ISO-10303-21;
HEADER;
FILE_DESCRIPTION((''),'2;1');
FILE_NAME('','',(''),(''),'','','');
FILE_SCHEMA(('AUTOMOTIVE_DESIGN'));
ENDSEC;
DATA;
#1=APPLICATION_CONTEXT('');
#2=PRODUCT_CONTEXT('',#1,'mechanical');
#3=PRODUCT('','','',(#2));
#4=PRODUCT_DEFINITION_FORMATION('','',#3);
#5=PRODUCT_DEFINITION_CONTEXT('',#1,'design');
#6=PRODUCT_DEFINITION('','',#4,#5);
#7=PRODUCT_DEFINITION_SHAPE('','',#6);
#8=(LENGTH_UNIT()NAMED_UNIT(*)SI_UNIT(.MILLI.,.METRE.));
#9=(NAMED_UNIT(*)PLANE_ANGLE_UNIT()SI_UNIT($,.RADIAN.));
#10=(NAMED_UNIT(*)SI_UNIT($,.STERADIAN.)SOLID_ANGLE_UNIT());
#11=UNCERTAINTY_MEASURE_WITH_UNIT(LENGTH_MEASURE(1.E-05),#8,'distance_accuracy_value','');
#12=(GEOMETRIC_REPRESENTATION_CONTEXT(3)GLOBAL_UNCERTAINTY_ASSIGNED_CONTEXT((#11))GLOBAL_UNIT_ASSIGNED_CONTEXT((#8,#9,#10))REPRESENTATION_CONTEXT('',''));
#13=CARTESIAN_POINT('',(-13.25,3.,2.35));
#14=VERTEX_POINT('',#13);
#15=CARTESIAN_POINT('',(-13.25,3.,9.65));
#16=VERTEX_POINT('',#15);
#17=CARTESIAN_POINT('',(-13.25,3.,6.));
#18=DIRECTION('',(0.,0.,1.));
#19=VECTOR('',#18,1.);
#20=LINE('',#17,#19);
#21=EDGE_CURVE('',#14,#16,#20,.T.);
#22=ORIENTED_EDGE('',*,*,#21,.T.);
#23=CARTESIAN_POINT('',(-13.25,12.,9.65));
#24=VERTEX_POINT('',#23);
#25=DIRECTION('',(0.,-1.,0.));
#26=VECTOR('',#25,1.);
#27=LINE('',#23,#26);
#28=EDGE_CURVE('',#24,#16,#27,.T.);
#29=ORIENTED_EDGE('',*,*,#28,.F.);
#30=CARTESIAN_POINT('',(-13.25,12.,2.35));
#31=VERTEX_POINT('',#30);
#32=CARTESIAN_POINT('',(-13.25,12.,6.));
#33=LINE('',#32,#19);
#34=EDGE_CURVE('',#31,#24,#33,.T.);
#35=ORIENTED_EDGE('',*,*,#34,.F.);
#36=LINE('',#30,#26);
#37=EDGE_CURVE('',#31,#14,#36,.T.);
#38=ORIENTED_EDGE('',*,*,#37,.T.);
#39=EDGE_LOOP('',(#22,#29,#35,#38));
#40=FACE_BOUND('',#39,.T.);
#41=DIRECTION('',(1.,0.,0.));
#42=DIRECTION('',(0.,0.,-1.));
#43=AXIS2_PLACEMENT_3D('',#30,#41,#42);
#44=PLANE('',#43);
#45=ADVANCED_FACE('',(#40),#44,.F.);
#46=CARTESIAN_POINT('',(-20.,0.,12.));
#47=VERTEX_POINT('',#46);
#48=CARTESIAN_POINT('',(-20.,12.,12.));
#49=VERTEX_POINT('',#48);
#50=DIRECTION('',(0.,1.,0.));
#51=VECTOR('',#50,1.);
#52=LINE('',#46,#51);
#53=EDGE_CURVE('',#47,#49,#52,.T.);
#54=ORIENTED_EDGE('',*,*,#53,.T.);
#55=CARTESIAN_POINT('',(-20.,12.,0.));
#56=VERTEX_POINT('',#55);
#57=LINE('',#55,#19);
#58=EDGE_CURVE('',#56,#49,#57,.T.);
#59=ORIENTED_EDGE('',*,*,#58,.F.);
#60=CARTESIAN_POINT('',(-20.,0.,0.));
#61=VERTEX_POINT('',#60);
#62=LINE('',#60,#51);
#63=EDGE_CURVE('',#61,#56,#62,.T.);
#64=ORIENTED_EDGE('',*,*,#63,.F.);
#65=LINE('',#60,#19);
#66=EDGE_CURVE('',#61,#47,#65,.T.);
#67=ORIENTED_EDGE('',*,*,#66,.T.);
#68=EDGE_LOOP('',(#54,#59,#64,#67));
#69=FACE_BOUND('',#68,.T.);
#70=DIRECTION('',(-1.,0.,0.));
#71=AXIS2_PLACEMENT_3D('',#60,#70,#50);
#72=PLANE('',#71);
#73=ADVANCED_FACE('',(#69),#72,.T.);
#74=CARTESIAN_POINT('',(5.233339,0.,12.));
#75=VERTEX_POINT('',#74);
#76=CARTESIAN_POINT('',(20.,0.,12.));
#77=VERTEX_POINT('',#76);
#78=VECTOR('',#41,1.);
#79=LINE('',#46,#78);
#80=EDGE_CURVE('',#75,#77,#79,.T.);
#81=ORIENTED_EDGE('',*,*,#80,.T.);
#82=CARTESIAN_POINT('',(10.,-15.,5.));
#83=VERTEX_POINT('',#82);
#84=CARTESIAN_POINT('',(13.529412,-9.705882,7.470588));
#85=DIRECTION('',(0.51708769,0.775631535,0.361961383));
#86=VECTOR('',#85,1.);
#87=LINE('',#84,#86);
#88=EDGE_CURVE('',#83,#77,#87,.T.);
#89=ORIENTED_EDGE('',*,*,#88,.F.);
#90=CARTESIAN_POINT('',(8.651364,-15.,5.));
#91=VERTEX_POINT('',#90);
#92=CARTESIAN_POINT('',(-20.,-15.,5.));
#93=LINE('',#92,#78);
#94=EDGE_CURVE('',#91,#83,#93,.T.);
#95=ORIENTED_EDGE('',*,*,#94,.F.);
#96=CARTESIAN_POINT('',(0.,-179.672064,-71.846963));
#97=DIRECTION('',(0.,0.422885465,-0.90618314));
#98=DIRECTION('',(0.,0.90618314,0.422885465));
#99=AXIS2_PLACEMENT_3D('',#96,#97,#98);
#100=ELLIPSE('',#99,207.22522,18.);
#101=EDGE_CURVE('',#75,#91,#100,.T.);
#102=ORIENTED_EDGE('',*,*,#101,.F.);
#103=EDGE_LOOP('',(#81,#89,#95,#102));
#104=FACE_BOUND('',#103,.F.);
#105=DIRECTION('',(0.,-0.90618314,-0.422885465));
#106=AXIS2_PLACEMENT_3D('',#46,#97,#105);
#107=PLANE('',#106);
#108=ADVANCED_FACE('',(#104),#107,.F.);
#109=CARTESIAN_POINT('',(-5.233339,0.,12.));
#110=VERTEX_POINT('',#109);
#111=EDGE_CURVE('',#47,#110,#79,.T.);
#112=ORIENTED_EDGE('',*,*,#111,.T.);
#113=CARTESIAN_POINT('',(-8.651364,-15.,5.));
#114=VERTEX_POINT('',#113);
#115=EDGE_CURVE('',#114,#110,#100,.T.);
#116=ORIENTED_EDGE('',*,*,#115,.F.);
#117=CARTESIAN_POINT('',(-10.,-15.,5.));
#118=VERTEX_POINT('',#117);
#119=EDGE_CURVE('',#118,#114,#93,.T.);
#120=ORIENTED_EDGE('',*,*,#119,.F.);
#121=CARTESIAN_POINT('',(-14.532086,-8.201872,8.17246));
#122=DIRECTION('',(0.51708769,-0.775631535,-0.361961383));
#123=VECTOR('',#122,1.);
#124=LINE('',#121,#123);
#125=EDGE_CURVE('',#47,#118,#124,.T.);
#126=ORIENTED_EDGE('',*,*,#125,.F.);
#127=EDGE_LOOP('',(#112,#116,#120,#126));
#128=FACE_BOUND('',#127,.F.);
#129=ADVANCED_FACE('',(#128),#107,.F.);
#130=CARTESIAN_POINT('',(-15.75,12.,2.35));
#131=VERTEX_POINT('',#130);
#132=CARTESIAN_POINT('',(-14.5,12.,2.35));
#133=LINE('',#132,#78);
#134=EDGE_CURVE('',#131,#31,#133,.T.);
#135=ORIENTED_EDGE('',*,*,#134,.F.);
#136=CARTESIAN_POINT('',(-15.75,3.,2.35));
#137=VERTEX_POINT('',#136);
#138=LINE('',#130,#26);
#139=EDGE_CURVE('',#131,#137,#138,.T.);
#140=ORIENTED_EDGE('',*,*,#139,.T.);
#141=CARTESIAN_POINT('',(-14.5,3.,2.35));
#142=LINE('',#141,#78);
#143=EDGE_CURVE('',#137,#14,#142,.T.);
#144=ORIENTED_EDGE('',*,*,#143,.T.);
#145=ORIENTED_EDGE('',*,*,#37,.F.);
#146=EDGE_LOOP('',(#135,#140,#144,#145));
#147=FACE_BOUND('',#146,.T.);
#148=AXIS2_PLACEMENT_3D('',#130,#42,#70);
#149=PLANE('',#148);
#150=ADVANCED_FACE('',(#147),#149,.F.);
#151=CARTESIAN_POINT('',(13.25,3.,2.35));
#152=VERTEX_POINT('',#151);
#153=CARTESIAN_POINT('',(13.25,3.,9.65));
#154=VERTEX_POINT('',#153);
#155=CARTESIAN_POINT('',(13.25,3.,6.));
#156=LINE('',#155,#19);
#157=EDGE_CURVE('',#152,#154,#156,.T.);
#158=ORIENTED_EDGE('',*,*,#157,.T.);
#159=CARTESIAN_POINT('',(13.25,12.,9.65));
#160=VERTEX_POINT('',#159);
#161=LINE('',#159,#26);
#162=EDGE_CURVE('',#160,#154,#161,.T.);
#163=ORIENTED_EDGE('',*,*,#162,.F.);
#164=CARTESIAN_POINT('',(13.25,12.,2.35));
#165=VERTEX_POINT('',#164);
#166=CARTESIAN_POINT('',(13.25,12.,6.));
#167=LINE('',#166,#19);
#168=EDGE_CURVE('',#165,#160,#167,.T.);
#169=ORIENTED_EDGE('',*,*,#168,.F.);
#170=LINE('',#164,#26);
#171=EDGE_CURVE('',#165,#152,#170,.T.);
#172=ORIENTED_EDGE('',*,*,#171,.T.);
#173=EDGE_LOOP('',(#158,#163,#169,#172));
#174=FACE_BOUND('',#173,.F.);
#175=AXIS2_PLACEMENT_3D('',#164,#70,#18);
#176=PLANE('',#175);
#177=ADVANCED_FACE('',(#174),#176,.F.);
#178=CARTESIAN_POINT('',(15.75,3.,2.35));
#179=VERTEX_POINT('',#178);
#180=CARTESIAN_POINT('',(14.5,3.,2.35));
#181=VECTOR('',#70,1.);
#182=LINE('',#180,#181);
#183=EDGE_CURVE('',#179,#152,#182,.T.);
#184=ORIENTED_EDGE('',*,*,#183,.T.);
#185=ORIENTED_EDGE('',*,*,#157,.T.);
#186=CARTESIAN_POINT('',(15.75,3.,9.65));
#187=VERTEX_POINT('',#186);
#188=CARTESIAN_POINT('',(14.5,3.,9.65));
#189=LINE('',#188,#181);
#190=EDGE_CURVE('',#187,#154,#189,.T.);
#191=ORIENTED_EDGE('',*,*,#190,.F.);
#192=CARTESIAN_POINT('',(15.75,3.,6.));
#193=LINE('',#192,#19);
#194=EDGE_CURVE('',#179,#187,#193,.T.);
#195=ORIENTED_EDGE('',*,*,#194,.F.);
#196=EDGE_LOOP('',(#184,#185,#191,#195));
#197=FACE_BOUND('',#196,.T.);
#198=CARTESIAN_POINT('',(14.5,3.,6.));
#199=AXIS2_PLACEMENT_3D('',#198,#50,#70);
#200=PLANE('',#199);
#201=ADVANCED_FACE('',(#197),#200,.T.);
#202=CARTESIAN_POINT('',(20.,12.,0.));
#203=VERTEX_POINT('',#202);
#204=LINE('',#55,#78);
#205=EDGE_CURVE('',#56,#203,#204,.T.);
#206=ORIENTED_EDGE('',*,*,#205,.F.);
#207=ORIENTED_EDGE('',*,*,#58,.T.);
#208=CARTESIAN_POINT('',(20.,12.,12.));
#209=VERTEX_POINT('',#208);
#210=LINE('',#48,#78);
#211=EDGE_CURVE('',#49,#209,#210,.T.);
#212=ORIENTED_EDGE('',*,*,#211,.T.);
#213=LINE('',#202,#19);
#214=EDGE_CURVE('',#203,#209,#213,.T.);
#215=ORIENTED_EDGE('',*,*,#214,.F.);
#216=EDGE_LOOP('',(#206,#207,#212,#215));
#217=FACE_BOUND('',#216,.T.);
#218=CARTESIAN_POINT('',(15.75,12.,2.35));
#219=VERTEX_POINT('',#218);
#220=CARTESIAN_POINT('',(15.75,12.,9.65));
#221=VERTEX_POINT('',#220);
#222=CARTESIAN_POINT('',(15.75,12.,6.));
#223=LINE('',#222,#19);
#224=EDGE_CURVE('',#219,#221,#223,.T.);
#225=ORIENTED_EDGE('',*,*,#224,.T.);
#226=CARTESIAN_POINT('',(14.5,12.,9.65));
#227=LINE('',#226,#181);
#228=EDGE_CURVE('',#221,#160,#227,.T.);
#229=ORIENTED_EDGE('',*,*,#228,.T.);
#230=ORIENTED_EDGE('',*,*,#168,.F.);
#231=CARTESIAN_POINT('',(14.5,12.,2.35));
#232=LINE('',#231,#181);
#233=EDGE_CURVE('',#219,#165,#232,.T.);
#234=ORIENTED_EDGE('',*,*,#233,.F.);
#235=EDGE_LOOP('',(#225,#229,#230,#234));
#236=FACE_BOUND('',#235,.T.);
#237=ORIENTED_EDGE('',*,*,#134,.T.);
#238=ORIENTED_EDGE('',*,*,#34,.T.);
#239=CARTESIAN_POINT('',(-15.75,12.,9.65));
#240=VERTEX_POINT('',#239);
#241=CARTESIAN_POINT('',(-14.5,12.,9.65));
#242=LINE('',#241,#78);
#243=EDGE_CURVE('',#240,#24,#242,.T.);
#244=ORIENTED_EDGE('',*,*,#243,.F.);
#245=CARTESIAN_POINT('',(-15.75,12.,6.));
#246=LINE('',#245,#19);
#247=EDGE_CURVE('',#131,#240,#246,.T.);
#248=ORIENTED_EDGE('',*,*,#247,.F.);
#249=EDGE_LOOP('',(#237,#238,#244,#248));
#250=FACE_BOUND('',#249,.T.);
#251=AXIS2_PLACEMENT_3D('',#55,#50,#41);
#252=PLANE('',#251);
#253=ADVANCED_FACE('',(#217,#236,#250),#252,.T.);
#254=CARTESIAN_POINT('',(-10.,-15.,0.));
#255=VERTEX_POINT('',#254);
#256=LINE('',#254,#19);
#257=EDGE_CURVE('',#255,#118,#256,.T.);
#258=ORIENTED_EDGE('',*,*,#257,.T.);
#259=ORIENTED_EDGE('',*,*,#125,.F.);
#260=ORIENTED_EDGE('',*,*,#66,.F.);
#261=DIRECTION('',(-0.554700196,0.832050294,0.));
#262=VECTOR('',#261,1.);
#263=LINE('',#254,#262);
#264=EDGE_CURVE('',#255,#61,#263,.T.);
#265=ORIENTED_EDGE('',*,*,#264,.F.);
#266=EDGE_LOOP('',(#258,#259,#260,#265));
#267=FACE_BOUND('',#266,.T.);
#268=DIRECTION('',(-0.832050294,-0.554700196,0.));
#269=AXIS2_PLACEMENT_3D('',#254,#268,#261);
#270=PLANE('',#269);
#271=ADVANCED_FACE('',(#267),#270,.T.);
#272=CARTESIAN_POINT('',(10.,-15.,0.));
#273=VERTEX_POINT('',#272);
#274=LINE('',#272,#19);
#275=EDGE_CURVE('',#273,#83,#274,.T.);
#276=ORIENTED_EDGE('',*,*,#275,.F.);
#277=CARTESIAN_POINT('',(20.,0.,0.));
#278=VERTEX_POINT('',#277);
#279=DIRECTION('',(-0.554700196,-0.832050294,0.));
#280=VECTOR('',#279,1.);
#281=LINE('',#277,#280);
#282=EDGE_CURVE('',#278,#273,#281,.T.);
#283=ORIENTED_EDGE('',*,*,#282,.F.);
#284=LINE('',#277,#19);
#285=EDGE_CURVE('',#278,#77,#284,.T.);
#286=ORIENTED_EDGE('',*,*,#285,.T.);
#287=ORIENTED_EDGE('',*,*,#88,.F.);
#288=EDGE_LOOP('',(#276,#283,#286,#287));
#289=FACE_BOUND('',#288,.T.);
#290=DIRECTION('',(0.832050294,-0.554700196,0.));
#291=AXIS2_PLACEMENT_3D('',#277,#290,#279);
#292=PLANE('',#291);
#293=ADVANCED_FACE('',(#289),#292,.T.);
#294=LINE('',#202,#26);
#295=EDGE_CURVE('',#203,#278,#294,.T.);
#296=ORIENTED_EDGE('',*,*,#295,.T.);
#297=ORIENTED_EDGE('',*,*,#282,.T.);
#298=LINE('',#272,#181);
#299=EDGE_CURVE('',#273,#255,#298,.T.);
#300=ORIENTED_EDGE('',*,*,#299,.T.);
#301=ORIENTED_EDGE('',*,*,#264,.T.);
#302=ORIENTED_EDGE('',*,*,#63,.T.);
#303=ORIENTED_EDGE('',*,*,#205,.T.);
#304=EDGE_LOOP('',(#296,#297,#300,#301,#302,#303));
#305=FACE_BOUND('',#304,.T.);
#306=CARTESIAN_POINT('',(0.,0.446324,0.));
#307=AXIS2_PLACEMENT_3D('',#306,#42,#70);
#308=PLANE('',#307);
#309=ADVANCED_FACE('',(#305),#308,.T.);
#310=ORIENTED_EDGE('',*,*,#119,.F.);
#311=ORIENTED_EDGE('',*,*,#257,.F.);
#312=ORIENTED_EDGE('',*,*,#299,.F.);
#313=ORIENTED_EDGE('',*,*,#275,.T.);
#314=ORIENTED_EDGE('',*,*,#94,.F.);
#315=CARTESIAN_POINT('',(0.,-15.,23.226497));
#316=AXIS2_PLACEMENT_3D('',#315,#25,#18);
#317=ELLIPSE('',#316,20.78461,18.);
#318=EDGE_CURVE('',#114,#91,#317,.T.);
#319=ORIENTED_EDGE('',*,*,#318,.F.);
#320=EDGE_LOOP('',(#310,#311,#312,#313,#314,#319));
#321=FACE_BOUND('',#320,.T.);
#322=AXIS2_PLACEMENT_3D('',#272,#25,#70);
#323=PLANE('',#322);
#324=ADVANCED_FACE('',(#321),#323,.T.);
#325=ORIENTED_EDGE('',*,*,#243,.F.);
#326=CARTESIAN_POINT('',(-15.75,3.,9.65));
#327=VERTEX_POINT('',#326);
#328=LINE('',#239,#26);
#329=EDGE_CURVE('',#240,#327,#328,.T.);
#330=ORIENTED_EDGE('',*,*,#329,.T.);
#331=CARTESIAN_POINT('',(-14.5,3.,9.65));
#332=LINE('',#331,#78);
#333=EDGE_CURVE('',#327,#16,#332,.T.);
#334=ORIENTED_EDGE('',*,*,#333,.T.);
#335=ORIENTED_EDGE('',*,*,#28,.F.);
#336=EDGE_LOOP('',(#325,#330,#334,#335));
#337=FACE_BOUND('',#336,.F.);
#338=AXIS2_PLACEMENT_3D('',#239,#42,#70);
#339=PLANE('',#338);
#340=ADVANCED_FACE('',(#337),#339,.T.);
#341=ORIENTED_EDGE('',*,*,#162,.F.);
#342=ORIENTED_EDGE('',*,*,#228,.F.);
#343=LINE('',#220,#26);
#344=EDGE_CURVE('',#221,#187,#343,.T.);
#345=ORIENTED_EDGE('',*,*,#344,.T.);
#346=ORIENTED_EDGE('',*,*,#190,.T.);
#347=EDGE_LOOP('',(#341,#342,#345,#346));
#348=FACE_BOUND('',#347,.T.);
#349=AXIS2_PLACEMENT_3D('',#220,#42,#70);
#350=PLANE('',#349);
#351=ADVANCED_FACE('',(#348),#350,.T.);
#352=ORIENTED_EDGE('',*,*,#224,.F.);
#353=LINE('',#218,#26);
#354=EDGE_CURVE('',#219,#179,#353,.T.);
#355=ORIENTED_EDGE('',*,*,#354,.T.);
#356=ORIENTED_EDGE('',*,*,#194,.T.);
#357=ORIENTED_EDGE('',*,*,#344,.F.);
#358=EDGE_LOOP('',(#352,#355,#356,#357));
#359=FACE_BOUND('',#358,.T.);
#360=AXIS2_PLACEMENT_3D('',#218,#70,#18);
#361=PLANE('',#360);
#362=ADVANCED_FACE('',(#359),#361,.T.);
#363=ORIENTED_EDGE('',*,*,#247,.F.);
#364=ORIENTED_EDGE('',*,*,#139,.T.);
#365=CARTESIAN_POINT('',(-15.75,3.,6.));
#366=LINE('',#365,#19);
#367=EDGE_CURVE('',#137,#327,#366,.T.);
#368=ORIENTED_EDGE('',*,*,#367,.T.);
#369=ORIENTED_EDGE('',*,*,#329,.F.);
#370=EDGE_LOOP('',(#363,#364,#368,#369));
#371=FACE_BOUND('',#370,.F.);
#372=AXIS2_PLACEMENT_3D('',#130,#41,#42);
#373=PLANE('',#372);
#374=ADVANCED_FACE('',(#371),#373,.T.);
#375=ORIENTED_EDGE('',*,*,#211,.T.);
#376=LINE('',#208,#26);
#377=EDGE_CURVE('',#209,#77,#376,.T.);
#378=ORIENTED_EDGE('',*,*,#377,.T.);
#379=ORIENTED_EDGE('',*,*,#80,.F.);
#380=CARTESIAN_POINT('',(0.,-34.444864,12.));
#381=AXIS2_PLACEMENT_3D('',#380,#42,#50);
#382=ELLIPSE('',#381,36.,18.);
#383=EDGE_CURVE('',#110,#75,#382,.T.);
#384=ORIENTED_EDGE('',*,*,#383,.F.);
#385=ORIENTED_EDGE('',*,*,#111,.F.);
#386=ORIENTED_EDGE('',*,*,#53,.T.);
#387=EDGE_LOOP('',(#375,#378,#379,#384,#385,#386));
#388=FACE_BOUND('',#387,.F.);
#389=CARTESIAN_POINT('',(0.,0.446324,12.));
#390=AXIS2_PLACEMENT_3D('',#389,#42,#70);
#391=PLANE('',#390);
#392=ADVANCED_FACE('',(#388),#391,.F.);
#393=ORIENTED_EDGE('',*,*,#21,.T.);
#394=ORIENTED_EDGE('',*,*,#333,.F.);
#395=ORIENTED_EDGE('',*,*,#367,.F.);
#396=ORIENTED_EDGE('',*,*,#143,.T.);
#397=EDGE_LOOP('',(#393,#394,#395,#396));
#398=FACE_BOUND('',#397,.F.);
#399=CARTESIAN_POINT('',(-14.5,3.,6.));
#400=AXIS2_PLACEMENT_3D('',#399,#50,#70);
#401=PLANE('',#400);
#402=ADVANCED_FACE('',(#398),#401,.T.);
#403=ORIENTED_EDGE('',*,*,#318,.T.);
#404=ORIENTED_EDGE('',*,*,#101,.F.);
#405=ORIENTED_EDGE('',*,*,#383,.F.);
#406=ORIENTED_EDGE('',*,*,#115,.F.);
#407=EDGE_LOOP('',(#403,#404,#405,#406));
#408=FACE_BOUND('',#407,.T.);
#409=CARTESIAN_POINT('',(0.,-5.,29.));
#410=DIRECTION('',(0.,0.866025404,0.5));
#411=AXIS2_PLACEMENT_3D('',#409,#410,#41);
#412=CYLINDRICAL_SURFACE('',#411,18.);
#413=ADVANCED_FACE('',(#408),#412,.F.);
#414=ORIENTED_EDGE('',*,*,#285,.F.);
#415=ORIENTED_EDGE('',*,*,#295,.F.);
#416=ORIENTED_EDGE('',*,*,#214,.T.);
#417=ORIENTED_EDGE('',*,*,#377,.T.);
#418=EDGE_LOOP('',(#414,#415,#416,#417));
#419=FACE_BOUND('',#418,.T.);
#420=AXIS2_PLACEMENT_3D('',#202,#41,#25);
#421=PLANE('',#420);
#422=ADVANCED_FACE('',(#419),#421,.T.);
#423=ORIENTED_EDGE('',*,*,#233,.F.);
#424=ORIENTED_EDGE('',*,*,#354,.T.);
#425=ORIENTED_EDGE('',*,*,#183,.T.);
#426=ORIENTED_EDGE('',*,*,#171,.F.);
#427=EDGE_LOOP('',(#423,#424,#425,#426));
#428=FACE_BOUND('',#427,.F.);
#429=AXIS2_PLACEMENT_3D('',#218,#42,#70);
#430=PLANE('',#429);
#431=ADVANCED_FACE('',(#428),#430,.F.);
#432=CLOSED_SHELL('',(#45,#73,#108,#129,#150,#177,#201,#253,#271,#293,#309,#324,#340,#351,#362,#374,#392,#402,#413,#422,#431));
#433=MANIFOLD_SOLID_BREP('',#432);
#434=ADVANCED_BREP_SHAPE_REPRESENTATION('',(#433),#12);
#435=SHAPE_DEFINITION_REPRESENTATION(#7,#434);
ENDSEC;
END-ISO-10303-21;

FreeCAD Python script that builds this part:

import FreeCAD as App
import Part
import Sketcher
Q = App.Units.Quantity


def add_polygon(sketch, points):
    """Adds a closed chain of lines whose ends are joined by coincident constraints."""
    first, n = sketch.GeometryCount, len(points)
    for a, b in zip(points, points[1:] + points[:1]):
        sketch.addGeometry(Part.LineSegment(App.Vector(*a, 0), App.Vector(*b, 0)), False)
    for i in range(n):
        sketch.addConstraint(Sketcher.Constraint("Coincident", first + i, 2, first + (i + 1) % n, 1))

doc = App.newDocument("Part")
params = doc.addObject("Spreadsheet::Sheet", "Params")
for row, (alias, value) in enumerate([
    ("sketch1_diameter", "36 mm"),
    ("pad1_length", "30 mm"),
    ("sketch2_width", "40 mm"),
    ("sketch2_width2", "20 mm"),
    ("sketch2_height", "12 mm"),
    ("pad2_length", "12 mm"),
    ("sketch3_width", "15 mm"),
    ("sketch3_height", "7 mm"),
    ("sketch4_width", "2.5 mm"),
    ("sketch4_height", "7.3 mm"),
    ("pocket2_length", "9 mm"),
], start=1):
    params.set(f"A{row}", alias)
    params.set(f"B{row}", "=" + value)
    params.setAlias(f"B{row}", alias)

body = doc.addObject("PartDesign::Body", "Body")

# Sketch on XY plane
sketch1 = body.newObject("Sketcher::SketchObject", "Sketch")
sketch1.AttachmentSupport = (doc.getObject("XY_Plane"), [""])
sketch1.MapMode = "FlatFace"
sketch1.addGeometry(Part.Circle(App.Vector(0, 0, 0), App.Vector(0, 0, 1), 18), False)
sketch1.addConstraint([
    Sketcher.Constraint("Coincident", 0, 3, -1, 1),
    Sketcher.Constraint("Diameter", 0, Q("36 mm")),
])
sketch1.setExpression("Constraints[1]", "Params.sketch1_diameter")
pad1 = body.newObject("PartDesign::Pad", "Pad")
pad1.Profile = sketch1
pad1.setExpression("Length", "Params.pad1_length")
body2 = doc.addObject("PartDesign::Body", "Body001")
doc.recompute()

body.Placement = App.Placement(App.Vector(0, -5, 29), App.Rotation(App.Vector(1, 0, 0), 120))
boolean = body2.newObject("PartDesign::Boolean", "Boolean")
boolean.Type = "Fuse"
boolean.addObjects([body])
body3 = doc.addObject("PartDesign::Body", "Body002")

# Sketch on XY plane
sketch2 = body3.newObject("Sketcher::SketchObject", "Sketch001")
sketch2.AttachmentSupport = (doc.getObject("XY_Plane002"), [""])
sketch2.MapMode = "FlatFace"
add_polygon(sketch2, [(20, 12), (-20, 12), (-20, 0), (-10, -15), (10, -15), (20, 0)])  # lines 0-5
sketch2.addConstraint([
    Sketcher.Constraint("Horizontal", 0),
    Sketcher.Constraint("Vertical", 1),
    Sketcher.Constraint("Horizontal", 3),
    Sketcher.Constraint("Vertical", 5),
    Sketcher.Constraint("Symmetric", 1, 2, 4, 2, -1, 1),
    Sketcher.Constraint("PointOnObject", 1, 2, -1),
    Sketcher.Constraint("Equal", 2, 4),
    Sketcher.Constraint("DistanceX", 0, 2, 0, 1, Q("40 mm")),
    Sketcher.Constraint("DistanceX", 3, 1, 3, 2, Q("20 mm")),
    Sketcher.Constraint("DistanceY", 1, 2, 1, 1, Q("12 mm")),
    Sketcher.Constraint("DistanceY", 2, 2, -1, 1, Q("15 mm")),
])
sketch2.setExpression("Constraints[13]", "Params.sketch2_width")
sketch2.setExpression("Constraints[14]", "Params.sketch2_width2")
sketch2.setExpression("Constraints[15]", "Params.sketch2_height")
pad2 = body3.newObject("PartDesign::Pad", "Pad001")
pad2.Profile = sketch2
pad2.setExpression("Length", "Params.pad2_length")

# Sketch on YZ plane
sketch3 = body3.newObject("Sketcher::SketchObject", "Sketch002")
sketch3.AttachmentSupport = (doc.getObject("YZ_Plane002"), [""])
sketch3.MapMode = "FlatFace"
sketch3.AttachmentOffset = App.Placement(App.Vector(0, 0, -20), App.Rotation())
add_polygon(sketch3, [(0, 12), (-15, 5), (-15, 12)])  # lines 0-2
sketch3.addConstraint([
    Sketcher.Constraint("Vertical", 1),
    Sketcher.Constraint("Horizontal", 2),
    Sketcher.Constraint("PointOnObject", 2, 2, -2),
    Sketcher.Constraint("DistanceX", 2, 1, 2, 2, Q("15 mm")),
    Sketcher.Constraint("DistanceY", 1, 1, 1, 2, Q("7 mm")),
    Sketcher.Constraint("DistanceY", -1, 1, 0, 2, Q("5 mm")),
])
sketch3.setExpression("Constraints[6]", "Params.sketch3_width")
sketch3.setExpression("Constraints[7]", "Params.sketch3_height")
pocket1 = body3.newObject("PartDesign::Pocket", "Pocket")
pocket1.Profile = sketch3
pocket1.Type = "ThroughAll"
pocket1.Reversed = True

# Sketch on XZ plane
sketch4 = body3.newObject("Sketcher::SketchObject", "Sketch003")
sketch4.AttachmentSupport = (doc.getObject("XZ_Plane002"), [""])
sketch4.MapMode = "FlatFace"
sketch4.AttachmentOffset = App.Placement(App.Vector(0, 0, -12), App.Rotation())
add_polygon(sketch4, [(15.8, 9.7), (15.8, 2.4), (13.2, 2.4), (13.2, 9.7)])  # lines 0-3
sketch4.addConstraint([
    Sketcher.Constraint("Vertical", 0),
    Sketcher.Constraint("Horizontal", 1),
    Sketcher.Constraint("Vertical", 2),
    Sketcher.Constraint("Horizontal", 3),
    Sketcher.Constraint("DistanceX", 1, 2, 1, 1, Q("2.5 mm")),
    Sketcher.Constraint("DistanceY", 0, 2, 0, 1, Q("7.3 mm")),
    Sketcher.Constraint("DistanceX", -1, 1, 0, 2, Q("15.75 mm")),
    Sketcher.Constraint("DistanceY", -1, 1, 0, 2, Q("2.35 mm")),
])
sketch4.setExpression("Constraints[8]", "Params.sketch4_width")
sketch4.setExpression("Constraints[9]", "Params.sketch4_height")
pocket2 = body3.newObject("PartDesign::Pocket", "Pocket001")
pocket2.Profile = sketch4
pocket2.setExpression("Length", "Params.pocket2_length")
pocket2.Reversed = True
doc.recompute()

mirrored = body3.newObject("PartDesign::Mirrored", "Mirrored")
mirrored.Originals = [pocket2]
mirrored.MirrorPlane = (doc.getObject("YZ_Plane002"), [""])
body3.Tip = mirrored
doc.recompute()

boolean2 = body3.newObject("PartDesign::Boolean", "Boolean001")
boolean2.Type = "Cut"
boolean2.addObjects([body2])

doc.recompute()
